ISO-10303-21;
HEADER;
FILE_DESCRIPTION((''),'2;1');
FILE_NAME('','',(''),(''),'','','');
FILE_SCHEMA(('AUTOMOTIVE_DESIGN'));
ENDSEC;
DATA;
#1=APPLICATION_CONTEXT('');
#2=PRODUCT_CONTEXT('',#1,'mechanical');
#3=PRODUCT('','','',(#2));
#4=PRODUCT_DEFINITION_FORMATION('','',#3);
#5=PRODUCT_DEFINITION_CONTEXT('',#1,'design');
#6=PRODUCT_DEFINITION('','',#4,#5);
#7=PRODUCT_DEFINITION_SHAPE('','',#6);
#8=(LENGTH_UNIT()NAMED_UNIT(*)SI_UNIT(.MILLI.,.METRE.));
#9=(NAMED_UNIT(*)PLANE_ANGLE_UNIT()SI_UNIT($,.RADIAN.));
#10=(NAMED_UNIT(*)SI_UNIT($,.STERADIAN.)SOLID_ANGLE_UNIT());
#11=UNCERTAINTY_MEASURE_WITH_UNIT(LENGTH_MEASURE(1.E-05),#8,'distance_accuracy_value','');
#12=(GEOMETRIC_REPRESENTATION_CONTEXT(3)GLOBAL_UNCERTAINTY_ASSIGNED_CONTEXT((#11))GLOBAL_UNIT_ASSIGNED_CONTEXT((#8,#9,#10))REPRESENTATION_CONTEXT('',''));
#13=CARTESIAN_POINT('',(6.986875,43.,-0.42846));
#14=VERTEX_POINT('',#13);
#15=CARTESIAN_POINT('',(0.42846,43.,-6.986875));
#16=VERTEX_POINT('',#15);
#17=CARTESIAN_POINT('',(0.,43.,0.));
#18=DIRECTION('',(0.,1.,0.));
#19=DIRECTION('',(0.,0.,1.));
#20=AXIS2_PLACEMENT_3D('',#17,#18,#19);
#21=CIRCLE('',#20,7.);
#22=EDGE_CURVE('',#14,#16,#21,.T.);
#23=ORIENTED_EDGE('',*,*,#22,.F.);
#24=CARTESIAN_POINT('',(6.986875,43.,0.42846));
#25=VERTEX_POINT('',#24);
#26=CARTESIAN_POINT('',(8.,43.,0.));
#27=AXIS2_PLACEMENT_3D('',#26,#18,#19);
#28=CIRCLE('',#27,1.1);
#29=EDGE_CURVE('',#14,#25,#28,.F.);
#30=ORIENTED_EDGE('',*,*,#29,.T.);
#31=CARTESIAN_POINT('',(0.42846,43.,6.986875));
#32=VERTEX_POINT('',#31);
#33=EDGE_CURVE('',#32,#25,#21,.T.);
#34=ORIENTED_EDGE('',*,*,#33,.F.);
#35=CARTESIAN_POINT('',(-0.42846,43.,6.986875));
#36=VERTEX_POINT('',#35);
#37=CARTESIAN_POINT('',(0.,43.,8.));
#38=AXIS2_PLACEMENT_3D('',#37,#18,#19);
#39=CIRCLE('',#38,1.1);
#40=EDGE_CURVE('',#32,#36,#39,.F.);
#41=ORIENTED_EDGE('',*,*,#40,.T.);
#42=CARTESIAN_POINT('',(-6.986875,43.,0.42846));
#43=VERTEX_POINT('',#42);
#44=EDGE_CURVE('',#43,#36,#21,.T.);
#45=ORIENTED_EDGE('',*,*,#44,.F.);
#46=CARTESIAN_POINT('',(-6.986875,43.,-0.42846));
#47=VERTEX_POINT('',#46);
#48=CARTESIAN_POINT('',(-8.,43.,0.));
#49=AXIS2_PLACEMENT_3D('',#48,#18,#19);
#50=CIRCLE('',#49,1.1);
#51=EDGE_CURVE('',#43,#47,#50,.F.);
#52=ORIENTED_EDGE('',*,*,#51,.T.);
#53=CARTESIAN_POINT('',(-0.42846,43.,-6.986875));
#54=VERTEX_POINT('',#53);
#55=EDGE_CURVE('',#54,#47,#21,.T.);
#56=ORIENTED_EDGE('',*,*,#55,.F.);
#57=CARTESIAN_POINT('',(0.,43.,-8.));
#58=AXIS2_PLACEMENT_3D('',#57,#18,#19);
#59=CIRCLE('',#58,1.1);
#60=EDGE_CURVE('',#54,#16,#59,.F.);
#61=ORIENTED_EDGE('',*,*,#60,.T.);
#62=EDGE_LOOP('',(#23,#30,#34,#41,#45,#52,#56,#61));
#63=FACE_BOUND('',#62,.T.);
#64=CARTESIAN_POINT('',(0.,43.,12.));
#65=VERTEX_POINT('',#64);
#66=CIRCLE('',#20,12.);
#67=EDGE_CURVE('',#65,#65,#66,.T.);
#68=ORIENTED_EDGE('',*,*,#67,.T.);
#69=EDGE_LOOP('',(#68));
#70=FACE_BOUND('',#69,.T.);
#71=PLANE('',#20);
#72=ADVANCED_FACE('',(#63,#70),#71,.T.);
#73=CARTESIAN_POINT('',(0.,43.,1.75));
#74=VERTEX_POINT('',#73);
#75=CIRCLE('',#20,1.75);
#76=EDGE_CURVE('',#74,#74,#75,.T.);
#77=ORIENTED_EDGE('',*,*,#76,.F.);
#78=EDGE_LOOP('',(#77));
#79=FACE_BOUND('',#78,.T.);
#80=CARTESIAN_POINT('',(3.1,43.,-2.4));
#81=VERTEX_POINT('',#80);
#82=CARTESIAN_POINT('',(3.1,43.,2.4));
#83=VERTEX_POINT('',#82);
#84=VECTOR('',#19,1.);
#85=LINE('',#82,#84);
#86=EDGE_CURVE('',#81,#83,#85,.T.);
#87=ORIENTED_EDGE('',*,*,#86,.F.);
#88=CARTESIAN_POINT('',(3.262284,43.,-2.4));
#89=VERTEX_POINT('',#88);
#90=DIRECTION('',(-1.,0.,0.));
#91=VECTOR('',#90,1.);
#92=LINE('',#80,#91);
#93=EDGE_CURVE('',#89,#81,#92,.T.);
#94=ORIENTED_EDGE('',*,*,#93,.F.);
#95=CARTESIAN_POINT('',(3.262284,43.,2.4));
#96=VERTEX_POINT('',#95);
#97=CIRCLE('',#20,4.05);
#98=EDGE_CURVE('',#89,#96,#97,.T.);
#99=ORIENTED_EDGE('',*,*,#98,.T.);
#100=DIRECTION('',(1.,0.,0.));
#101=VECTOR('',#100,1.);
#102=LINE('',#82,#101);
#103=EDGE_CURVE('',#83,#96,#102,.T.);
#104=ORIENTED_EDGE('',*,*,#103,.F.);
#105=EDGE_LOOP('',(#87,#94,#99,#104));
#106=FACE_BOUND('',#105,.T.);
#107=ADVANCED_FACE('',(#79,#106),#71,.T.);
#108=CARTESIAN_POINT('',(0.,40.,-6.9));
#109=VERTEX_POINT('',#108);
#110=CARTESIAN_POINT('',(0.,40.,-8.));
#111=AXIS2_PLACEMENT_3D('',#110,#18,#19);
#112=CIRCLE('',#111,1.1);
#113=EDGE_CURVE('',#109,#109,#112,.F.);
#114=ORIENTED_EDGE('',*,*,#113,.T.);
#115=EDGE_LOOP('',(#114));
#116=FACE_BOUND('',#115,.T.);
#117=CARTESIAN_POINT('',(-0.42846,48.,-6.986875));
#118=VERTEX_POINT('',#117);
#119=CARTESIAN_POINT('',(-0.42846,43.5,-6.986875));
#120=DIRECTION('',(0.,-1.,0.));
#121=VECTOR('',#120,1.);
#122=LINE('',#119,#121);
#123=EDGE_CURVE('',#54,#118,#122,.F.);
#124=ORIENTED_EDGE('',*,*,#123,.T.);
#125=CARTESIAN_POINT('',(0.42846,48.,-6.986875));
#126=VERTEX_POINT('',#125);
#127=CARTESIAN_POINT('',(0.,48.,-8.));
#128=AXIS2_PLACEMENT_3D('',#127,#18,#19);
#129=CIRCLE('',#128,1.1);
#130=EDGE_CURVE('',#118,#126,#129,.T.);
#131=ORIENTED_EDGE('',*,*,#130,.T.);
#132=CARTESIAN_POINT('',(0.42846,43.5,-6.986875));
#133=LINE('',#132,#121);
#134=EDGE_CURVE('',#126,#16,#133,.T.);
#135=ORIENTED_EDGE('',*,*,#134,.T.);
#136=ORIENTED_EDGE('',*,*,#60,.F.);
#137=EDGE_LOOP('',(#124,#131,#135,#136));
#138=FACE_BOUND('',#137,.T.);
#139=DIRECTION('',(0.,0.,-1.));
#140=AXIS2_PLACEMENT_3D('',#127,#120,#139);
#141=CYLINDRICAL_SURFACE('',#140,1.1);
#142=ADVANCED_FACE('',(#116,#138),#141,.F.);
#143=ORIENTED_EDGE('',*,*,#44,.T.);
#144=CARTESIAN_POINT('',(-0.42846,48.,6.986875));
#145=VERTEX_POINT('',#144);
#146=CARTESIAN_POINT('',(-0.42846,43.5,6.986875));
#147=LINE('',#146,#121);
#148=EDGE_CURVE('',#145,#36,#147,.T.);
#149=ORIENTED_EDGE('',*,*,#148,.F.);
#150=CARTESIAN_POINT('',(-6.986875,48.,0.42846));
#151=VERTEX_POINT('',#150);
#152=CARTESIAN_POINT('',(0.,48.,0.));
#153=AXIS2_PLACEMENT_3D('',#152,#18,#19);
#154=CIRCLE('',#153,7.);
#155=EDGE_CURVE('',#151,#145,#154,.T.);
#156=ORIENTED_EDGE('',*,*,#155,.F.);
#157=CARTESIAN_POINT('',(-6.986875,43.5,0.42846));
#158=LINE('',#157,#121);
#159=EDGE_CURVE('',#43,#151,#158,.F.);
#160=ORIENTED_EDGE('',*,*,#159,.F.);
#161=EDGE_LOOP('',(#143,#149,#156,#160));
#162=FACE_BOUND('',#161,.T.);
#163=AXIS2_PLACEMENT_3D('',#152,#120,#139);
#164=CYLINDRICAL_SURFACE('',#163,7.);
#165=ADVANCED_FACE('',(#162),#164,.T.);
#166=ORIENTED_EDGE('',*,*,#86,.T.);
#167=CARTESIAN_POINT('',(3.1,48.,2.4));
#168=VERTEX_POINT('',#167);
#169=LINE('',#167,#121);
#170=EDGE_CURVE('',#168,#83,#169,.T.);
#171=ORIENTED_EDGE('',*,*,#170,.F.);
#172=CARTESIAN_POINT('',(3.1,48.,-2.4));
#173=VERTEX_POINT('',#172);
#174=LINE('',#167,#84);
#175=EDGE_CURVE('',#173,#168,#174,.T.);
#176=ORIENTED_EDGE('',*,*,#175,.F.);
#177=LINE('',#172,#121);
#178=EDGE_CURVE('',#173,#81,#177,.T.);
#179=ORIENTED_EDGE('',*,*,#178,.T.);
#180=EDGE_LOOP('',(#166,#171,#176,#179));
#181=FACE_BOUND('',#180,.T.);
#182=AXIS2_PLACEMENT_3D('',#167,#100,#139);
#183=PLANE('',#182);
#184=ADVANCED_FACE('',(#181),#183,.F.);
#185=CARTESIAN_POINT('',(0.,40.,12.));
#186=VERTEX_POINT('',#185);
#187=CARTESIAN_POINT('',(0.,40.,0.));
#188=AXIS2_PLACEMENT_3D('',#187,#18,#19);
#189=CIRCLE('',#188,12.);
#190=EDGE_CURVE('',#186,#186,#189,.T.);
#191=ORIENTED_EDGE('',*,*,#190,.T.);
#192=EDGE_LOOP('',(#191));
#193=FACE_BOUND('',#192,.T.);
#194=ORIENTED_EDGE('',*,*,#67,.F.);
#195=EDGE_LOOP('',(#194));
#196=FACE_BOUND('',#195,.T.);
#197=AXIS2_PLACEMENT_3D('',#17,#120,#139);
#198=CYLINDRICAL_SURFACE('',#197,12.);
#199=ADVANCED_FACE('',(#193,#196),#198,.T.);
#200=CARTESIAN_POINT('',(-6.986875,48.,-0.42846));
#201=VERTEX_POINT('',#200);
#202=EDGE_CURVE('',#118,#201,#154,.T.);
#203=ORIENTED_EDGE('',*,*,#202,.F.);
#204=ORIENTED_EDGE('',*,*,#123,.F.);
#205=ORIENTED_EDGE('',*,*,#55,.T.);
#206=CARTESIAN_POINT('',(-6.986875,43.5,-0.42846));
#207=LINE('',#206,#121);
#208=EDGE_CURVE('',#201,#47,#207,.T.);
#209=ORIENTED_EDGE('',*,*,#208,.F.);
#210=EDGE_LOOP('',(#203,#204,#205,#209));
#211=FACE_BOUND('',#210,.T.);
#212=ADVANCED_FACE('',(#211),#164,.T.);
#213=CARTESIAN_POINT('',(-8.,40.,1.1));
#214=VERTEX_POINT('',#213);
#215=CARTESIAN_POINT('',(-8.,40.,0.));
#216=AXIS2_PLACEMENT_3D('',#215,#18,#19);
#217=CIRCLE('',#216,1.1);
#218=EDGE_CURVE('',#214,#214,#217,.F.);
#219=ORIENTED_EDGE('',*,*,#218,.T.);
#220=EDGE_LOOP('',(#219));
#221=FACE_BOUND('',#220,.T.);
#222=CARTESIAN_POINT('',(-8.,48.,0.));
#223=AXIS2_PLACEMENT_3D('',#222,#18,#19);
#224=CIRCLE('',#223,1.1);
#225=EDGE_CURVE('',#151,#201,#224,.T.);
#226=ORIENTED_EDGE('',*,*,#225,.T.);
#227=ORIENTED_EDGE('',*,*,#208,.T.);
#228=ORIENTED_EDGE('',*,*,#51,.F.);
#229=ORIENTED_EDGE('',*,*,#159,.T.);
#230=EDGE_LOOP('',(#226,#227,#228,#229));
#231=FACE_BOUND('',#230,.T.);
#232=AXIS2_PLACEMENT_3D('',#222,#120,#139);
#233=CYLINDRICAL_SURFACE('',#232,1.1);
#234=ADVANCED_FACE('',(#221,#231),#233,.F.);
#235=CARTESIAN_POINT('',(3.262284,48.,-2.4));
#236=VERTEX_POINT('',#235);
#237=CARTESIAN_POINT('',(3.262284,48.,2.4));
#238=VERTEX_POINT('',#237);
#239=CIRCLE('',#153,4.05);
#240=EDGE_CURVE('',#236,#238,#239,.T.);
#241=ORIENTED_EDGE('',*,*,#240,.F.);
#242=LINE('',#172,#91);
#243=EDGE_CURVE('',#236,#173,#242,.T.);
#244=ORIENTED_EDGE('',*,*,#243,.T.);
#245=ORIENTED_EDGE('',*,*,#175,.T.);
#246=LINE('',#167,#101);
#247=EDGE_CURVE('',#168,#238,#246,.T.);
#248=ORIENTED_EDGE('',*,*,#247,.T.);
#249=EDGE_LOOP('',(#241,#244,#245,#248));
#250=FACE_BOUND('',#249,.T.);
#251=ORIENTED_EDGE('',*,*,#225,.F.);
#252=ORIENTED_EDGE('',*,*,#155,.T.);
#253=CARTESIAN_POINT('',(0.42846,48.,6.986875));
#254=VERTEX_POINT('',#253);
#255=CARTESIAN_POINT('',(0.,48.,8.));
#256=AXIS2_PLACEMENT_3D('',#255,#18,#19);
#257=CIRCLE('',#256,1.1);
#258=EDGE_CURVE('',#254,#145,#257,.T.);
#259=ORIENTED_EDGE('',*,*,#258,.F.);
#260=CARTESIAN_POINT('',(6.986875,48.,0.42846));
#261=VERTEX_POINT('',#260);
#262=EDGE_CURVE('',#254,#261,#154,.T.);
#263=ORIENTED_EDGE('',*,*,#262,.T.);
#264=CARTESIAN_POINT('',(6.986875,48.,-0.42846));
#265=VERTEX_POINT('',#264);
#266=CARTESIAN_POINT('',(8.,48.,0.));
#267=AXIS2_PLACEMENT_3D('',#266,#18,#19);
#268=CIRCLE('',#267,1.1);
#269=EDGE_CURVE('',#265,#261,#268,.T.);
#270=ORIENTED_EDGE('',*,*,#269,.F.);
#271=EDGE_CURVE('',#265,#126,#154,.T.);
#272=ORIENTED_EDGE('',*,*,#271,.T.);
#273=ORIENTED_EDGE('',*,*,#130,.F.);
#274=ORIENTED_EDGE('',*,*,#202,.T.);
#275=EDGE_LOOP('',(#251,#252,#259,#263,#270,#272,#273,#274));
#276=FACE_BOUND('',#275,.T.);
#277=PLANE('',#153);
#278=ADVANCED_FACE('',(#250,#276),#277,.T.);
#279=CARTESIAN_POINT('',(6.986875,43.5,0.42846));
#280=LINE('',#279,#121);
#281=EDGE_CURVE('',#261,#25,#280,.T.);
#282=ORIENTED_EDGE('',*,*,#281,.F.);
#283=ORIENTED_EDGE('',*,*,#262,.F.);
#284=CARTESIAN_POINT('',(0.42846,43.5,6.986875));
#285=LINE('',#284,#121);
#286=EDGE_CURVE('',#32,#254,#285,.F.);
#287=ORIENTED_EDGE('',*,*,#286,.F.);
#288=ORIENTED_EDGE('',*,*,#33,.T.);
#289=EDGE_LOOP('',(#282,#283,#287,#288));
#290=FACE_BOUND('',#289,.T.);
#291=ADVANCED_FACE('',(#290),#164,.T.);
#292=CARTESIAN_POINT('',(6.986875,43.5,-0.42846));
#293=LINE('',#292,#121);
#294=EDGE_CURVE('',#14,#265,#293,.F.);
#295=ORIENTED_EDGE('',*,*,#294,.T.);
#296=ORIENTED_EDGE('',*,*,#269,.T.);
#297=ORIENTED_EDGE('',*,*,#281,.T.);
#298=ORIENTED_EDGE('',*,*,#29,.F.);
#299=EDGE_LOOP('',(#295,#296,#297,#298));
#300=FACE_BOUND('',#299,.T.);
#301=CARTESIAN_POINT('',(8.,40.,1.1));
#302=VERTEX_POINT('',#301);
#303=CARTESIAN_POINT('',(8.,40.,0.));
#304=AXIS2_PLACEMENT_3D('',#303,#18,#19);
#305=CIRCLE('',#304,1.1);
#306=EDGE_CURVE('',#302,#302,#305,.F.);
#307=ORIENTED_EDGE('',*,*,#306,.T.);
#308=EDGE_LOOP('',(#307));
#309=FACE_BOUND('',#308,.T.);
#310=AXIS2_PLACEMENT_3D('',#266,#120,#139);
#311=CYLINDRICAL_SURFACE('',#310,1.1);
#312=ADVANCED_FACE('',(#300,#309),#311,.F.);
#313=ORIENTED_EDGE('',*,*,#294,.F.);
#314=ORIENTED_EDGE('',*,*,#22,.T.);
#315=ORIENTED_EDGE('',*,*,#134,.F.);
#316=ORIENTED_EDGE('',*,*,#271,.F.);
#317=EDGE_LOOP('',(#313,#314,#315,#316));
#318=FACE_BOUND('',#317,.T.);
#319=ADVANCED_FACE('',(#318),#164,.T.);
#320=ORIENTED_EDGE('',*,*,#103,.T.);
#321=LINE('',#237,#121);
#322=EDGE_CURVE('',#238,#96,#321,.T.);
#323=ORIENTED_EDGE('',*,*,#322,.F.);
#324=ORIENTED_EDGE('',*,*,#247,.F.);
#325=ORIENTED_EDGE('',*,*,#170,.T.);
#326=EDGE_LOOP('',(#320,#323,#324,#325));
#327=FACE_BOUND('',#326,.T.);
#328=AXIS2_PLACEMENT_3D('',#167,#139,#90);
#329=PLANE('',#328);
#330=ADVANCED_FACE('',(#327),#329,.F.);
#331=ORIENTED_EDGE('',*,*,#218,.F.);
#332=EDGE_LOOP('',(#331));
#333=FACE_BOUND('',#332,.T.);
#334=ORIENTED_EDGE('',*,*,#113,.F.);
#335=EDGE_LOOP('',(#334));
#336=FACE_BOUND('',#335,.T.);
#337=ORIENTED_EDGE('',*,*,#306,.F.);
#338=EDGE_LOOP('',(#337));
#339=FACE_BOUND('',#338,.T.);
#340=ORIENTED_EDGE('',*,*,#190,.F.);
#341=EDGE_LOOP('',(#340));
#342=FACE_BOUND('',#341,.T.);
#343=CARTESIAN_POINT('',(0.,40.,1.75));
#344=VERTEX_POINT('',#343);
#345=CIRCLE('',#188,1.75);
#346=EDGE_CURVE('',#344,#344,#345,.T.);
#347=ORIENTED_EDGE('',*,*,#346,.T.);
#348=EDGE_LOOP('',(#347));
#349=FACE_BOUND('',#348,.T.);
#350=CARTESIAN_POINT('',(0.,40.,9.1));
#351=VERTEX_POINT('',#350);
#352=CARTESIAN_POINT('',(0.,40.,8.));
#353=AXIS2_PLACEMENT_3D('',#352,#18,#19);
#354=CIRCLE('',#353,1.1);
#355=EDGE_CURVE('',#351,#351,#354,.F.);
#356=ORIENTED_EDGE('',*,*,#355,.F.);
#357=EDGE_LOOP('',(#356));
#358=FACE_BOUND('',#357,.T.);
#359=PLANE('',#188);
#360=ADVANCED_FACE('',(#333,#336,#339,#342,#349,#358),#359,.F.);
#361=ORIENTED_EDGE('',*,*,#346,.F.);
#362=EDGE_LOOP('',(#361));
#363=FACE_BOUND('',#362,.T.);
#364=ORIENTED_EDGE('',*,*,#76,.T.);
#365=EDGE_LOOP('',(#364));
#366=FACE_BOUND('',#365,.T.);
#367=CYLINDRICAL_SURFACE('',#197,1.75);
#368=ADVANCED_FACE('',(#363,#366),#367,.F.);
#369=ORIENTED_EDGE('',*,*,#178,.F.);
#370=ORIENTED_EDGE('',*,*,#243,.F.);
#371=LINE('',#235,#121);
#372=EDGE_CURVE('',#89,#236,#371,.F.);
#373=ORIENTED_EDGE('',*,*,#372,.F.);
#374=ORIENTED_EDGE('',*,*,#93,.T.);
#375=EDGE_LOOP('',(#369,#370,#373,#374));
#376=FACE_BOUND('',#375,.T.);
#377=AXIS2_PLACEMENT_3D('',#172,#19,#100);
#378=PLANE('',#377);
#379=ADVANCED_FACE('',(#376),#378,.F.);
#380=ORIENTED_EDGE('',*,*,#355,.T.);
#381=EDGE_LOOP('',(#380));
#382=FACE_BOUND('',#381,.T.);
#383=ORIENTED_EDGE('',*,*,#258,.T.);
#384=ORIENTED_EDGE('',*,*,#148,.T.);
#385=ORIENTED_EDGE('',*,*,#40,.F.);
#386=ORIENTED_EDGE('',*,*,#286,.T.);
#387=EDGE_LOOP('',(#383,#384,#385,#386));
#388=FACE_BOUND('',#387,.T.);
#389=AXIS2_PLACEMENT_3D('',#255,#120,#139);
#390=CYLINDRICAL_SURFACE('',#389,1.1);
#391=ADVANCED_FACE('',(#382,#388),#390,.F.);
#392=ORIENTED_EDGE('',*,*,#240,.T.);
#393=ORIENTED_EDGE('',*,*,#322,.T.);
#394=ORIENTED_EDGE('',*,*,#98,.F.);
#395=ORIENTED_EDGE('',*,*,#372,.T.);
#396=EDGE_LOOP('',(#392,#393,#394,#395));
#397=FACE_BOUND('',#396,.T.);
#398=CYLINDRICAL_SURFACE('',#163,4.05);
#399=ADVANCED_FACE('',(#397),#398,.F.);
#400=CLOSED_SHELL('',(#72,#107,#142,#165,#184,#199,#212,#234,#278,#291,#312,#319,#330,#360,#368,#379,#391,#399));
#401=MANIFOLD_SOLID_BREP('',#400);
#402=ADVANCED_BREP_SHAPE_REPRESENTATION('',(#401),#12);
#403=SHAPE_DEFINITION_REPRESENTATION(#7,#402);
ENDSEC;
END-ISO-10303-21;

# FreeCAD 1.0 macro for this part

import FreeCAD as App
import Part
import Sketcher
from FreeCAD import Vector


def add_polygon(sketch, points):
    """Adds a closed chain of lines whose ends are joined by coincident constraints."""
    first, n = sketch.GeometryCount, len(points)
    for a, b in zip(points, points[1:] + points[:1]):
        sketch.addGeometry(Part.LineSegment(App.Vector(*a, 0), App.Vector(*b, 0)), False)
    for i in range(n):
        sketch.addConstraint(Sketcher.Constraint("Coincident", first + i, 2, first + (i + 1) % n, 1))

doc = App.newDocument("Part")
body = doc.addObject("PartDesign::Body", "Body")

sketch1 = body.newObject("Sketcher::SketchObject", "Sketch")
sketch1.AttachmentSupport = (doc.getObject("XZ_Plane"), [""])
sketch1.MapMode = "FlatFace"
sketch1.AttachmentOffset = App.Placement(Vector(0, 0, -40), App.Rotation())
sketch1.addGeometry([
    Part.Circle(Vector(0, 0, 0), Vector(0, 0, 1), 12),
    Part.Circle(Vector(0, 0, 0), Vector(0, 0, 1), 1.75),
], False)
sketch1.addConstraint([
    Sketcher.Constraint("Coincident", 0, 3, -1, 1),
    Sketcher.Constraint("Coincident", 1, 3, -1, 1),
    Sketcher.Constraint("Diameter", 0, 24.0),
    Sketcher.Constraint("Diameter", 1, 3.5),
])
pad1 = body.newObject("PartDesign::Pad", "Pad")
pad1.Profile = sketch1
pad1.Length = 3
pad1.Reversed = True

sketch2 = body.newObject("Sketcher::SketchObject", "Sketch001")
sketch2.AttachmentSupport = (doc.getObject("XZ_Plane"), [""])
sketch2.MapMode = "FlatFace"
sketch2.AttachmentOffset = App.Placement(Vector(0, 0, -43), App.Rotation())
sketch2.addGeometry([
    Part.Circle(Vector(0, 0, 0), Vector(0, 0, 1), 7),
    Part.Circle(Vector(0, 0, 0), Vector(0, 0, 1), 4.05),
], False)
sketch2.addConstraint([
    Sketcher.Constraint("Coincident", 0, 3, -1, 1),
    Sketcher.Constraint("Coincident", 1, 3, -1, 1),
    Sketcher.Constraint("Diameter", 0, 14.0),
    Sketcher.Constraint("Diameter", 1, 8.1),
])
pad2 = body.newObject("PartDesign::Pad", "Pad001")
pad2.Profile = sketch2
pad2.Length = 5
pad2.Reversed = True

sketch3 = body.newObject("Sketcher::SketchObject", "Sketch002")
sketch3.AttachmentSupport = (doc.getObject("XZ_Plane"), [""])
sketch3.MapMode = "FlatFace"
sketch3.AttachmentOffset = App.Placement(Vector(0, 0, -43), App.Rotation())
add_polygon(sketch3, [(3.1, -2.4), (3.1, 2.4), (6, 2.4), (6, -2.4)])
sketch3.addConstraint([
    Sketcher.Constraint("Vertical", 0),
    Sketcher.Constraint("Horizontal", 1),
    Sketcher.Constraint("Vertical", 2),
    Sketcher.Constraint("Horizontal", 3),
    Sketcher.Constraint("DistanceX", 1, 1, 1, 2, 2.9),
    Sketcher.Constraint("DistanceY", 0, 1, 0, 2, 4.8),
    Sketcher.Constraint("DistanceX", -1, 1, 1, 2, 6.0),
    Sketcher.Constraint("DistanceY", -1, 1, 0, 2, 2.4),
])
pad3 = body.newObject("PartDesign::Pad", "Pad002")
pad3.Profile = sketch3
pad3.Length = 5
pad3.Reversed = True

sketch4 = body.newObject("Sketcher::SketchObject", "Sketch003")
sketch4.AttachmentSupport = (doc.getObject("XZ_Plane"), [""])
sketch4.MapMode = "FlatFace"
sketch4.AttachmentOffset = App.Placement(Vector(0, 0, -39), App.Rotation())
sketch4.addGeometry([
    Part.Circle(Vector(-8, 0, 0), Vector(0, 0, 1), 1.1),
    Part.Circle(Vector(8, 0, 0), Vector(0, 0, 1), 1.1),
    Part.Circle(Vector(0, 8, 0), Vector(0, 0, 1), 1.1),
    Part.Circle(Vector(0, -8, 0), Vector(0, 0, 1), 1.1),
], False)
sketch4.addConstraint([
    Sketcher.Constraint("Equal", 0, 1),
    Sketcher.Constraint("Equal", 1, 2),
    Sketcher.Constraint("Equal", 2, 3),
    Sketcher.Constraint("Symmetric", 0, 3, 1, 3, -1, 1),
    Sketcher.Constraint("Symmetric", 2, 3, 3, 3, -1, 1),
    Sketcher.Constraint("PointOnObject", 0, 3, -1),
    Sketcher.Constraint("PointOnObject", 2, 3, -2),
    Sketcher.Constraint("Diameter", 0, 2.2),
    Sketcher.Constraint("DistanceX", 0, 3, -1, 1, 8.0),
    Sketcher.Constraint("DistanceY", -1, 1, 2, 3, 8.0),
])
pocket1 = body.newObject("PartDesign::Pocket", "Pocket")
pocket1.Profile = sketch4
pocket1.Type = "ThroughAll"

doc.recompute()
